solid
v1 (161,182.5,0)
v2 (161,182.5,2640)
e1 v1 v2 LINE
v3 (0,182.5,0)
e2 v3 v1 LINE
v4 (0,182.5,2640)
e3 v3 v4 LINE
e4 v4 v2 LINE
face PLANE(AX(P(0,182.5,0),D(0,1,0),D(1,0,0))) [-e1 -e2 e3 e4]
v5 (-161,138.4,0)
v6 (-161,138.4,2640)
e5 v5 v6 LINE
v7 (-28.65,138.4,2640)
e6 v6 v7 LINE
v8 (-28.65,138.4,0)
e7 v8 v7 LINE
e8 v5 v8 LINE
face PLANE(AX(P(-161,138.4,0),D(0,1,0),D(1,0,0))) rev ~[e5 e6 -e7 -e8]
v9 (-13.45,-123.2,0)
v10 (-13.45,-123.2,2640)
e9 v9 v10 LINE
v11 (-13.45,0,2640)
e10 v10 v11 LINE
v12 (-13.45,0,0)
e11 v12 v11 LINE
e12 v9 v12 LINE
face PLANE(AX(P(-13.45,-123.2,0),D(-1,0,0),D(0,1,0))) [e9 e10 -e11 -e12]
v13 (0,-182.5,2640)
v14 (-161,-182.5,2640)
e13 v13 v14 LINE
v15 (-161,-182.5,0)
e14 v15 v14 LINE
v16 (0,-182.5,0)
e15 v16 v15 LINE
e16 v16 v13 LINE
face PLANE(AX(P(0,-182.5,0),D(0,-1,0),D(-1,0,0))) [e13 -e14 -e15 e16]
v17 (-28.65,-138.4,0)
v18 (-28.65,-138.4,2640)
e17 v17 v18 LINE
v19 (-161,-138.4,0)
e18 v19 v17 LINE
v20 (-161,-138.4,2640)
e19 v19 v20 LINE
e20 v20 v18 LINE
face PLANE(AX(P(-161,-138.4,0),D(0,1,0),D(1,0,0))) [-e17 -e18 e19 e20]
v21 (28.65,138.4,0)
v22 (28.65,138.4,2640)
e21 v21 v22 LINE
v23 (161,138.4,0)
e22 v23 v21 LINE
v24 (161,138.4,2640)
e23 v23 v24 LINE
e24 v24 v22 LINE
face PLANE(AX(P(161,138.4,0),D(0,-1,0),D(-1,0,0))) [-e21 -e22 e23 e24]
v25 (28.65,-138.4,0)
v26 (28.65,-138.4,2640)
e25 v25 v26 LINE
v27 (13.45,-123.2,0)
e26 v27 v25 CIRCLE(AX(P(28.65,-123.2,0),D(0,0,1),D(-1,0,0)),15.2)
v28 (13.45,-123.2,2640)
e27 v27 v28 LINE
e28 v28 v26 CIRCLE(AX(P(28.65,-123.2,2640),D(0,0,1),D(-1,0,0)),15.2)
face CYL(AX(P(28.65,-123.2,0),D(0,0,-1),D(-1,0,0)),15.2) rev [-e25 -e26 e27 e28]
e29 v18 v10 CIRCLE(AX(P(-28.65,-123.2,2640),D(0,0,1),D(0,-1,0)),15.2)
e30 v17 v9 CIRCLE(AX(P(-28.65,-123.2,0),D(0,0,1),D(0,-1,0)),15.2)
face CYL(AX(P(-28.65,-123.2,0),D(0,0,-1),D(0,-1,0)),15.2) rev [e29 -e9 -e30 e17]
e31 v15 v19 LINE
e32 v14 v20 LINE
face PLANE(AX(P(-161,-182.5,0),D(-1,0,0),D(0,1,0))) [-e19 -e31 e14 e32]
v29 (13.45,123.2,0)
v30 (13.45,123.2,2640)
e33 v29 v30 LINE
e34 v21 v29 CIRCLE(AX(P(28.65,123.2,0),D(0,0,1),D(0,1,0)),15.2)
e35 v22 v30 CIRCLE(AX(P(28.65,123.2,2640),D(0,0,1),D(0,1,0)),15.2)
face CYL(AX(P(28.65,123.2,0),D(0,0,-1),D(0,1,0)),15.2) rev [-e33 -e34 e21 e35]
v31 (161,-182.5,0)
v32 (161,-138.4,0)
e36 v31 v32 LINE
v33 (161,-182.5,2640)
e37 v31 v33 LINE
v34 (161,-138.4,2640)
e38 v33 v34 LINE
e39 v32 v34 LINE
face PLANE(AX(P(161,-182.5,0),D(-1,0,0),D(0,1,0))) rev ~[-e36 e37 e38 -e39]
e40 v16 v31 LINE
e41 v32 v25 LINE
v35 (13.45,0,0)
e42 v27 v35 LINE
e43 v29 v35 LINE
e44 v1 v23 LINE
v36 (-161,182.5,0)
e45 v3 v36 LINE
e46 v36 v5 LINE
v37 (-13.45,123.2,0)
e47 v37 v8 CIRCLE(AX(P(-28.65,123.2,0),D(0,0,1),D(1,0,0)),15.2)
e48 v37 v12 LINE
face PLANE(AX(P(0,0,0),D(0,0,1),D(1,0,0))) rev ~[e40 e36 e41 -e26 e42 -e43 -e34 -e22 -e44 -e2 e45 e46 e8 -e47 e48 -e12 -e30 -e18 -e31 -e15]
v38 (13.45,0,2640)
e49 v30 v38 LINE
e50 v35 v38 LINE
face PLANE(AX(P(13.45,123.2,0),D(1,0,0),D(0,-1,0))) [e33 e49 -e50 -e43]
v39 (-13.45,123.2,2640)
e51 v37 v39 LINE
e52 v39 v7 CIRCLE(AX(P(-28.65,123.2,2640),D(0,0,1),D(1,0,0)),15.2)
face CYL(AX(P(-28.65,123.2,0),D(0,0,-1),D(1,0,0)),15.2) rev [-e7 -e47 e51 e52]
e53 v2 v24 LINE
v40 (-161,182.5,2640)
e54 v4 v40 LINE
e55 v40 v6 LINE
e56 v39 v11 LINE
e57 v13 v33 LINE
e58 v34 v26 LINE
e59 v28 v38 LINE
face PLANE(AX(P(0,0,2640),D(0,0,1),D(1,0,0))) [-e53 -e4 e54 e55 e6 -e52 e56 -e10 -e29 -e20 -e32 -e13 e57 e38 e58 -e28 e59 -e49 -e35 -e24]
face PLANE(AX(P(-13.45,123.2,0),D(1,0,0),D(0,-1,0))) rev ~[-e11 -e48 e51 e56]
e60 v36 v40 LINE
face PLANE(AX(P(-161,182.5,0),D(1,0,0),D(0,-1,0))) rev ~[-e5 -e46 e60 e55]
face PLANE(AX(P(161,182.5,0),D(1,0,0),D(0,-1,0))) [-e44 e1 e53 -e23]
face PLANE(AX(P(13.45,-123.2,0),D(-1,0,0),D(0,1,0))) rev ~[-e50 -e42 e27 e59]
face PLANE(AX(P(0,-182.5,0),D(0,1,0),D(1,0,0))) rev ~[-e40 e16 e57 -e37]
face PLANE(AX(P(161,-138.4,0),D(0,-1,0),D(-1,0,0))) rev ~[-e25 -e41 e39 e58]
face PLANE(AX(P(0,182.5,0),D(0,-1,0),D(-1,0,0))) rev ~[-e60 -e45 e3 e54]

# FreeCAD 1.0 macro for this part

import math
import FreeCAD as App
import Part
import Sketcher

doc = App.newDocument("Part")
body = doc.addObject("PartDesign::Body", "Body")

sketch1 = body.newObject("Sketcher::SketchObject", "Sketch")
sketch1.AttachmentSupport = (doc.getObject("XY_Plane"), [""])
sketch1.MapMode = "FlatFace"
sketch1.addGeometry([
    Part.LineSegment(App.Vector(-161, -138.4, 0), App.Vector(-161, -182.5, 0)),
    Part.LineSegment(App.Vector(-161, -182.5, 0), App.Vector(161, -182.5, 0)),
    Part.LineSegment(App.Vector(161, -182.5, 0), App.Vector(161, -138.4, 0)),
    Part.LineSegment(App.Vector(161, -138.4, 0), App.Vector(28.65, -138.4, 0)),
    Part.ArcOfCircle(Part.Circle(App.Vector(28.65, -123.2, 0), App.Vector(0, 0, 1), 15.2), math.radians(180), math.radians(270)),
    Part.LineSegment(App.Vector(13.45, -123.2, 0), App.Vector(13.45, 123.2, 0)),
    Part.ArcOfCircle(Part.Circle(App.Vector(28.65, 123.2, 0), App.Vector(0, 0, 1), 15.2), math.radians(90), math.radians(180)),
    Part.LineSegment(App.Vector(28.65, 138.4, 0), App.Vector(161, 138.4, 0)),
    Part.LineSegment(App.Vector(161, 138.4, 0), App.Vector(161, 182.5, 0)),
    Part.LineSegment(App.Vector(161, 182.5, 0), App.Vector(-161, 182.5, 0)),
    Part.LineSegment(App.Vector(-161, 182.5, 0), App.Vector(-161, 138.4, 0)),
    Part.LineSegment(App.Vector(-161, 138.4, 0), App.Vector(-28.65, 138.4, 0)),
    Part.ArcOfCircle(Part.Circle(App.Vector(-28.65, 123.2, 0), App.Vector(0, 0, 1), 15.2), math.radians(0), math.radians(90)),
    Part.LineSegment(App.Vector(-13.45, 123.2, 0), App.Vector(-13.45, -123.2, 0)),
    Part.ArcOfCircle(Part.Circle(App.Vector(-28.65, -123.2, 0), App.Vector(0, 0, 1), 15.2), math.radians(-90), math.radians(0)),
    Part.LineSegment(App.Vector(-28.65, -138.4, 0), App.Vector(-161, -138.4, 0)),
], False)
sketch1.addConstraint([
    Sketcher.Constraint("Coincident", 0, 2, 1, 1),
    Sketcher.Constraint("Coincident", 1, 2, 2, 1),
    Sketcher.Constraint("Coincident", 2, 2, 3, 1),
    Sketcher.Constraint("Tangent", 3, 2, 4, 2),
    Sketcher.Constraint("Tangent", 4, 1, 5, 1),
    Sketcher.Constraint("Tangent", 5, 2, 6, 2),
    Sketcher.Constraint("Tangent", 6, 1, 7, 1),
    Sketcher.Constraint("Coincident", 7, 2, 8, 1),
    Sketcher.Constraint("Coincident", 8, 2, 9, 1),
    Sketcher.Constraint("Coincident", 9, 2, 10, 1),
    Sketcher.Constraint("Coincident", 10, 2, 11, 1),
    Sketcher.Constraint("Tangent", 11, 2, 12, 2),
    Sketcher.Constraint("Tangent", 12, 1, 13, 1),
    Sketcher.Constraint("Tangent", 13, 2, 14, 2),
    Sketcher.Constraint("Tangent", 14, 1, 15, 1),
    Sketcher.Constraint("Coincident", 15, 2, 0, 1),
    Sketcher.Constraint("Vertical", 0),
    Sketcher.Constraint("Horizontal", 1),
    Sketcher.Constraint("Vertical", 2),
    Sketcher.Constraint("Horizontal", 3),
    Sketcher.Constraint("Vertical", 5),
    Sketcher.Constraint("Horizontal", 7),
    Sketcher.Constraint("Vertical", 8),
    Sketcher.Constraint("Horizontal", 9),
    Sketcher.Constraint("Vertical", 10),
    Sketcher.Constraint("Horizontal", 11),
    Sketcher.Constraint("Vertical", 13),
    Sketcher.Constraint("Horizontal", 15),
    Sketcher.Constraint("Equal", 4, 6),
    Sketcher.Constraint("Equal", 6, 12),
    Sketcher.Constraint("Equal", 12, 14),
    Sketcher.Constraint("Symmetric", 4, 3, 12, 3, -1, 1),
    Sketcher.Constraint("Symmetric", 0, 2, 8, 2, -1, 1),
    Sketcher.Constraint("Symmetric", 7, 2, 10, 2, -2),
    Sketcher.Constraint("Symmetric", 2, 2, 15, 2, -2),
    Sketcher.Constraint("Radius", 4, 15.2),
    Sketcher.Constraint("DistanceY", 0, 2, 0, 1, 44.1),
    Sketcher.Constraint("DistanceX", 0, 2, -1, 1, 161.0),
    Sketcher.Constraint("DistanceY", 0, 2, -1, 1, 182.5),
    Sketcher.Constraint("DistanceX", -1, 1, 4, 1, 13.45),
])
pad1 = body.newObject("PartDesign::Pad", "Pad")
pad1.Profile = sketch1
pad1.Length = 2640

doc.recompute()
